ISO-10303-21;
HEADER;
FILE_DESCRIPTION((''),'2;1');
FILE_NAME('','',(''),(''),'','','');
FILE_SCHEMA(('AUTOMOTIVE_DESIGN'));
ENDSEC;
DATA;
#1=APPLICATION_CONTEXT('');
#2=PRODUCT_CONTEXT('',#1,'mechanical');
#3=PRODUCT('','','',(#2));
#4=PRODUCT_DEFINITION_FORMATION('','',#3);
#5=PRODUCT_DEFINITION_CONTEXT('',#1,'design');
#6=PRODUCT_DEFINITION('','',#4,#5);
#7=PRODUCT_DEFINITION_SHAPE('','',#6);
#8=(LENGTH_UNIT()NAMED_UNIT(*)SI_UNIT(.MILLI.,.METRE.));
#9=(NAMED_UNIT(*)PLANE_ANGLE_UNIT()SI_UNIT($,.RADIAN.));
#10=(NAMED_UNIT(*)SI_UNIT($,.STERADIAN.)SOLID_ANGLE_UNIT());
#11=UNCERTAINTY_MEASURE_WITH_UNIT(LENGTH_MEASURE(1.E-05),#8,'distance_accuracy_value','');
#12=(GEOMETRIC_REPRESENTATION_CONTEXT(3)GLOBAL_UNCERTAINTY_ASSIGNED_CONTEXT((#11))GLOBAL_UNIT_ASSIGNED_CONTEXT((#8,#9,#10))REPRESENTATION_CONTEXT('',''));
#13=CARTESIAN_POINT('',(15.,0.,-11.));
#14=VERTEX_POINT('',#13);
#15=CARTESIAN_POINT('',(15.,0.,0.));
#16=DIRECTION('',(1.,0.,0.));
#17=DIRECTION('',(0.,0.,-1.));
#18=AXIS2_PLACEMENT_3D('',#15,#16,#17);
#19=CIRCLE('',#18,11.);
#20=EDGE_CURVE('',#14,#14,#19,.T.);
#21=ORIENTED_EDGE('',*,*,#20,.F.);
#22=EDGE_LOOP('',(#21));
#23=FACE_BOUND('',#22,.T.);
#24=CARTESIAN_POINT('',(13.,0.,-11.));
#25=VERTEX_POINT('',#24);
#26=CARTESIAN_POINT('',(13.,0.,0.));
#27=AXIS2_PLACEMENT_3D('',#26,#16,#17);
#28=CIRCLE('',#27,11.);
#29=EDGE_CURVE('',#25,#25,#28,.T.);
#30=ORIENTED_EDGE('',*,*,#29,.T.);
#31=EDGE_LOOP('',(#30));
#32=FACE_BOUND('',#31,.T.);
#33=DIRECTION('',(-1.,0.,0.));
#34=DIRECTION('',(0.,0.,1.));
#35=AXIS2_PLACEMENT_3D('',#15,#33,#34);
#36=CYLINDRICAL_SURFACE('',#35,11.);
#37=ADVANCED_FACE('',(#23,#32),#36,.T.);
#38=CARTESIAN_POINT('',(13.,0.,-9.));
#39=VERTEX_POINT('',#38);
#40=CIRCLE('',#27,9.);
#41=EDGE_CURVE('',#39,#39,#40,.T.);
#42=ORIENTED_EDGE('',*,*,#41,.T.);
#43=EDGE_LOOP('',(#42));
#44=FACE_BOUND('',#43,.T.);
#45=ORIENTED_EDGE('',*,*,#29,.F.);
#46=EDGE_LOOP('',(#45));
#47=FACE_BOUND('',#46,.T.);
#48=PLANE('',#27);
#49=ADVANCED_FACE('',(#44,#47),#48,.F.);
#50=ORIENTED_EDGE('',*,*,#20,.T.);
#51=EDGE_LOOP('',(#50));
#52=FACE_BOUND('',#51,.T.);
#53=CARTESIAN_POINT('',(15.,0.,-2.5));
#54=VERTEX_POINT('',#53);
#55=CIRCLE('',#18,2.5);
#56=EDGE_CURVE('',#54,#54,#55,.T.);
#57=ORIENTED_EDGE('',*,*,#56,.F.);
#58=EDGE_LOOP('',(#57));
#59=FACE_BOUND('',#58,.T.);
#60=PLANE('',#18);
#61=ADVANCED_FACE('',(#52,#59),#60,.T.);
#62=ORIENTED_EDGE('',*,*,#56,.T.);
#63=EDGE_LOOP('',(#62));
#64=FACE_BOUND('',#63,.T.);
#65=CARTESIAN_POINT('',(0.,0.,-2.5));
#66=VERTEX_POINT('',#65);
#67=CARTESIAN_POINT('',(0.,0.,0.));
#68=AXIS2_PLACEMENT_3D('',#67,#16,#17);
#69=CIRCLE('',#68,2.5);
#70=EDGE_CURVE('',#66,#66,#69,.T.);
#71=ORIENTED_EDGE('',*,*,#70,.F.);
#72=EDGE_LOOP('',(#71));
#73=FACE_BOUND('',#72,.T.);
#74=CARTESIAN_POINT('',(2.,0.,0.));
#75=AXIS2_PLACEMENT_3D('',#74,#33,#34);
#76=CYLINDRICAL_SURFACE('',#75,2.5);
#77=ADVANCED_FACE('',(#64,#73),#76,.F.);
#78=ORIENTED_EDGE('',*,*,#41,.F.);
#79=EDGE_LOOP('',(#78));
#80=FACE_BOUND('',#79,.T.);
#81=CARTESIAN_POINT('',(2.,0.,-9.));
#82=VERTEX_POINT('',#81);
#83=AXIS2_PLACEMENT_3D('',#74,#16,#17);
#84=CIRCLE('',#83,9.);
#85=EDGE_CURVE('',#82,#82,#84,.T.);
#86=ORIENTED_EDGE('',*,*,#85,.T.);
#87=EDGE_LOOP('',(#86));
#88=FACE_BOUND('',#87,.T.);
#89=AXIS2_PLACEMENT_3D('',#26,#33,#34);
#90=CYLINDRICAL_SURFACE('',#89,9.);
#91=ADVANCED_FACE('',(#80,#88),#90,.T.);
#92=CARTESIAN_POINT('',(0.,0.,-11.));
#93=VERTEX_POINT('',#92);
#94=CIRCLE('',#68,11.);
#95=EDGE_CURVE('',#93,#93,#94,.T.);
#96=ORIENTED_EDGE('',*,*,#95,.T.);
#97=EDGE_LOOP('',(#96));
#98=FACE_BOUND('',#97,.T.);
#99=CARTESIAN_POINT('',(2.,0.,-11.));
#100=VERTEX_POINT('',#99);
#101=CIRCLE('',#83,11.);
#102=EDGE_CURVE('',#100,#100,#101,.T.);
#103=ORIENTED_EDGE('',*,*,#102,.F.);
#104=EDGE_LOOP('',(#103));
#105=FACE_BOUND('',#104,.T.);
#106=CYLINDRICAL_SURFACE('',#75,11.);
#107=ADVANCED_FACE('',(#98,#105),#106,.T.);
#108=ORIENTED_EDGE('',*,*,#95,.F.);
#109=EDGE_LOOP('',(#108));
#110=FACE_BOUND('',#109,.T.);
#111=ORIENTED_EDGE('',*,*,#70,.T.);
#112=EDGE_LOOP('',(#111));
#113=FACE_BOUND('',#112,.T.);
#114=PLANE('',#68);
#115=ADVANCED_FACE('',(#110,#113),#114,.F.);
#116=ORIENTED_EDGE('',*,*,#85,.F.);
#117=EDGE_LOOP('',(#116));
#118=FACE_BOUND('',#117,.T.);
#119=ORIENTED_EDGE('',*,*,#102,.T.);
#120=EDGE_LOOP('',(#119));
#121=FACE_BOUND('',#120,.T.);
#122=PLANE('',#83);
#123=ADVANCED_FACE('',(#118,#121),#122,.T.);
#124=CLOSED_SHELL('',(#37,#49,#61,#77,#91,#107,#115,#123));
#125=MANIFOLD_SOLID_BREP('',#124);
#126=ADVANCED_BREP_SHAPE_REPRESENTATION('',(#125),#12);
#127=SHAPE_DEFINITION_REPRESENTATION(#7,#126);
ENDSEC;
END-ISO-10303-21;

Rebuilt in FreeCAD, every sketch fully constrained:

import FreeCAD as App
import Part
import Sketcher
from FreeCAD import Vector
Q = App.Units.Quantity

doc = App.newDocument("Part")
params = doc.addObject("Spreadsheet::Sheet", "Params")
for row, (alias, value) in enumerate([
    ("sketch1_diameter", "22 mm"),
    ("sketch1_diameter2", "5 mm"),
    ("pad1_length", "2 mm"),
    ("sketch2_diameter", "18 mm"),
    ("sketch2_diameter2", "5 mm"),
    ("pad2_length", "11 mm"),
    ("sketch3_diameter", "22 mm"),
    ("sketch3_diameter2", "5 mm"),
    ("pad3_length", "2 mm"),
], start=1):
    params.set(f"A{row}", alias)
    params.set(f"B{row}", "=" + value)
    params.setAlias(f"B{row}", alias)

body = doc.addObject("PartDesign::Body", "Body")

# Sketch on YZ plane
sketch1 = body.newObject("Sketcher::SketchObject", "Sketch")
sketch1.AttachmentSupport = (doc.getObject("YZ_Plane"), [""])
sketch1.MapMode = "FlatFace"
sketch1.addGeometry([
    Part.Circle(Vector(0, 0, 0), Vector(0, 0, 1), 11),
    Part.Circle(Vector(0, 0, 0), Vector(0, 0, 1), 2.5),
], False)
sketch1.addConstraint([
    Sketcher.Constraint("Coincident", 0, 3, -1, 1),
    Sketcher.Constraint("Coincident", 1, 3, -1, 1),
    Sketcher.Constraint("Diameter", 0, Q("22 mm")),
    Sketcher.Constraint("Diameter", 1, Q("5 mm")),
])
sketch1.setExpression("Constraints[2]", "Params.sketch1_diameter")
sketch1.setExpression("Constraints[3]", "Params.sketch1_diameter2")
pad1 = body.newObject("PartDesign::Pad", "Pad")
pad1.Profile = sketch1
pad1.setExpression("Length", "Params.pad1_length")

# Sketch on YZ plane
sketch2 = body.newObject("Sketcher::SketchObject", "Sketch001")
sketch2.AttachmentSupport = (doc.getObject("YZ_Plane"), [""])
sketch2.MapMode = "FlatFace"
sketch2.AttachmentOffset = App.Placement(Vector(0, 0, 2), App.Rotation())
sketch2.addGeometry([
    Part.Circle(Vector(0, 0, 0), Vector(0, 0, 1), 9),
    Part.Circle(Vector(0, 0, 0), Vector(0, 0, 1), 2.5),
], False)
sketch2.addConstraint([
    Sketcher.Constraint("Coincident", 0, 3, -1, 1),
    Sketcher.Constraint("Coincident", 1, 3, -1, 1),
    Sketcher.Constraint("Diameter", 0, Q("18 mm")),
    Sketcher.Constraint("Diameter", 1, Q("5 mm")),
])
sketch2.setExpression("Constraints[2]", "Params.sketch2_diameter")
sketch2.setExpression("Constraints[3]", "Params.sketch2_diameter2")
pad2 = body.newObject("PartDesign::Pad", "Pad001")
pad2.Profile = sketch2
pad2.setExpression("Length", "Params.pad2_length")

# Sketch on YZ plane
sketch3 = body.newObject("Sketcher::SketchObject", "Sketch002")
sketch3.AttachmentSupport = (doc.getObject("YZ_Plane"), [""])
sketch3.MapMode = "FlatFace"
sketch3.AttachmentOffset = App.Placement(Vector(0, 0, 13), App.Rotation())
sketch3.addGeometry([
    Part.Circle(Vector(0, 0, 0), Vector(0, 0, 1), 11),
    Part.Circle(Vector(0, 0, 0), Vector(0, 0, 1), 2.5),
], False)
sketch3.addConstraint([
    Sketcher.Constraint("Coincident", 0, 3, -1, 1),
    Sketcher.Constraint("Coincident", 1, 3, -1, 1),
    Sketcher.Constraint("Diameter", 0, Q("22 mm")),
    Sketcher.Constraint("Diameter", 1, Q("5 mm")),
])
sketch3.setExpression("Constraints[2]", "Params.sketch3_diameter")
sketch3.setExpression("Constraints[3]", "Params.sketch3_diameter2")
pad3 = body.newObject("PartDesign::Pad", "Pad002")
pad3.Profile = sketch3
pad3.setExpression("Length", "Params.pad3_length")

doc.recompute()
